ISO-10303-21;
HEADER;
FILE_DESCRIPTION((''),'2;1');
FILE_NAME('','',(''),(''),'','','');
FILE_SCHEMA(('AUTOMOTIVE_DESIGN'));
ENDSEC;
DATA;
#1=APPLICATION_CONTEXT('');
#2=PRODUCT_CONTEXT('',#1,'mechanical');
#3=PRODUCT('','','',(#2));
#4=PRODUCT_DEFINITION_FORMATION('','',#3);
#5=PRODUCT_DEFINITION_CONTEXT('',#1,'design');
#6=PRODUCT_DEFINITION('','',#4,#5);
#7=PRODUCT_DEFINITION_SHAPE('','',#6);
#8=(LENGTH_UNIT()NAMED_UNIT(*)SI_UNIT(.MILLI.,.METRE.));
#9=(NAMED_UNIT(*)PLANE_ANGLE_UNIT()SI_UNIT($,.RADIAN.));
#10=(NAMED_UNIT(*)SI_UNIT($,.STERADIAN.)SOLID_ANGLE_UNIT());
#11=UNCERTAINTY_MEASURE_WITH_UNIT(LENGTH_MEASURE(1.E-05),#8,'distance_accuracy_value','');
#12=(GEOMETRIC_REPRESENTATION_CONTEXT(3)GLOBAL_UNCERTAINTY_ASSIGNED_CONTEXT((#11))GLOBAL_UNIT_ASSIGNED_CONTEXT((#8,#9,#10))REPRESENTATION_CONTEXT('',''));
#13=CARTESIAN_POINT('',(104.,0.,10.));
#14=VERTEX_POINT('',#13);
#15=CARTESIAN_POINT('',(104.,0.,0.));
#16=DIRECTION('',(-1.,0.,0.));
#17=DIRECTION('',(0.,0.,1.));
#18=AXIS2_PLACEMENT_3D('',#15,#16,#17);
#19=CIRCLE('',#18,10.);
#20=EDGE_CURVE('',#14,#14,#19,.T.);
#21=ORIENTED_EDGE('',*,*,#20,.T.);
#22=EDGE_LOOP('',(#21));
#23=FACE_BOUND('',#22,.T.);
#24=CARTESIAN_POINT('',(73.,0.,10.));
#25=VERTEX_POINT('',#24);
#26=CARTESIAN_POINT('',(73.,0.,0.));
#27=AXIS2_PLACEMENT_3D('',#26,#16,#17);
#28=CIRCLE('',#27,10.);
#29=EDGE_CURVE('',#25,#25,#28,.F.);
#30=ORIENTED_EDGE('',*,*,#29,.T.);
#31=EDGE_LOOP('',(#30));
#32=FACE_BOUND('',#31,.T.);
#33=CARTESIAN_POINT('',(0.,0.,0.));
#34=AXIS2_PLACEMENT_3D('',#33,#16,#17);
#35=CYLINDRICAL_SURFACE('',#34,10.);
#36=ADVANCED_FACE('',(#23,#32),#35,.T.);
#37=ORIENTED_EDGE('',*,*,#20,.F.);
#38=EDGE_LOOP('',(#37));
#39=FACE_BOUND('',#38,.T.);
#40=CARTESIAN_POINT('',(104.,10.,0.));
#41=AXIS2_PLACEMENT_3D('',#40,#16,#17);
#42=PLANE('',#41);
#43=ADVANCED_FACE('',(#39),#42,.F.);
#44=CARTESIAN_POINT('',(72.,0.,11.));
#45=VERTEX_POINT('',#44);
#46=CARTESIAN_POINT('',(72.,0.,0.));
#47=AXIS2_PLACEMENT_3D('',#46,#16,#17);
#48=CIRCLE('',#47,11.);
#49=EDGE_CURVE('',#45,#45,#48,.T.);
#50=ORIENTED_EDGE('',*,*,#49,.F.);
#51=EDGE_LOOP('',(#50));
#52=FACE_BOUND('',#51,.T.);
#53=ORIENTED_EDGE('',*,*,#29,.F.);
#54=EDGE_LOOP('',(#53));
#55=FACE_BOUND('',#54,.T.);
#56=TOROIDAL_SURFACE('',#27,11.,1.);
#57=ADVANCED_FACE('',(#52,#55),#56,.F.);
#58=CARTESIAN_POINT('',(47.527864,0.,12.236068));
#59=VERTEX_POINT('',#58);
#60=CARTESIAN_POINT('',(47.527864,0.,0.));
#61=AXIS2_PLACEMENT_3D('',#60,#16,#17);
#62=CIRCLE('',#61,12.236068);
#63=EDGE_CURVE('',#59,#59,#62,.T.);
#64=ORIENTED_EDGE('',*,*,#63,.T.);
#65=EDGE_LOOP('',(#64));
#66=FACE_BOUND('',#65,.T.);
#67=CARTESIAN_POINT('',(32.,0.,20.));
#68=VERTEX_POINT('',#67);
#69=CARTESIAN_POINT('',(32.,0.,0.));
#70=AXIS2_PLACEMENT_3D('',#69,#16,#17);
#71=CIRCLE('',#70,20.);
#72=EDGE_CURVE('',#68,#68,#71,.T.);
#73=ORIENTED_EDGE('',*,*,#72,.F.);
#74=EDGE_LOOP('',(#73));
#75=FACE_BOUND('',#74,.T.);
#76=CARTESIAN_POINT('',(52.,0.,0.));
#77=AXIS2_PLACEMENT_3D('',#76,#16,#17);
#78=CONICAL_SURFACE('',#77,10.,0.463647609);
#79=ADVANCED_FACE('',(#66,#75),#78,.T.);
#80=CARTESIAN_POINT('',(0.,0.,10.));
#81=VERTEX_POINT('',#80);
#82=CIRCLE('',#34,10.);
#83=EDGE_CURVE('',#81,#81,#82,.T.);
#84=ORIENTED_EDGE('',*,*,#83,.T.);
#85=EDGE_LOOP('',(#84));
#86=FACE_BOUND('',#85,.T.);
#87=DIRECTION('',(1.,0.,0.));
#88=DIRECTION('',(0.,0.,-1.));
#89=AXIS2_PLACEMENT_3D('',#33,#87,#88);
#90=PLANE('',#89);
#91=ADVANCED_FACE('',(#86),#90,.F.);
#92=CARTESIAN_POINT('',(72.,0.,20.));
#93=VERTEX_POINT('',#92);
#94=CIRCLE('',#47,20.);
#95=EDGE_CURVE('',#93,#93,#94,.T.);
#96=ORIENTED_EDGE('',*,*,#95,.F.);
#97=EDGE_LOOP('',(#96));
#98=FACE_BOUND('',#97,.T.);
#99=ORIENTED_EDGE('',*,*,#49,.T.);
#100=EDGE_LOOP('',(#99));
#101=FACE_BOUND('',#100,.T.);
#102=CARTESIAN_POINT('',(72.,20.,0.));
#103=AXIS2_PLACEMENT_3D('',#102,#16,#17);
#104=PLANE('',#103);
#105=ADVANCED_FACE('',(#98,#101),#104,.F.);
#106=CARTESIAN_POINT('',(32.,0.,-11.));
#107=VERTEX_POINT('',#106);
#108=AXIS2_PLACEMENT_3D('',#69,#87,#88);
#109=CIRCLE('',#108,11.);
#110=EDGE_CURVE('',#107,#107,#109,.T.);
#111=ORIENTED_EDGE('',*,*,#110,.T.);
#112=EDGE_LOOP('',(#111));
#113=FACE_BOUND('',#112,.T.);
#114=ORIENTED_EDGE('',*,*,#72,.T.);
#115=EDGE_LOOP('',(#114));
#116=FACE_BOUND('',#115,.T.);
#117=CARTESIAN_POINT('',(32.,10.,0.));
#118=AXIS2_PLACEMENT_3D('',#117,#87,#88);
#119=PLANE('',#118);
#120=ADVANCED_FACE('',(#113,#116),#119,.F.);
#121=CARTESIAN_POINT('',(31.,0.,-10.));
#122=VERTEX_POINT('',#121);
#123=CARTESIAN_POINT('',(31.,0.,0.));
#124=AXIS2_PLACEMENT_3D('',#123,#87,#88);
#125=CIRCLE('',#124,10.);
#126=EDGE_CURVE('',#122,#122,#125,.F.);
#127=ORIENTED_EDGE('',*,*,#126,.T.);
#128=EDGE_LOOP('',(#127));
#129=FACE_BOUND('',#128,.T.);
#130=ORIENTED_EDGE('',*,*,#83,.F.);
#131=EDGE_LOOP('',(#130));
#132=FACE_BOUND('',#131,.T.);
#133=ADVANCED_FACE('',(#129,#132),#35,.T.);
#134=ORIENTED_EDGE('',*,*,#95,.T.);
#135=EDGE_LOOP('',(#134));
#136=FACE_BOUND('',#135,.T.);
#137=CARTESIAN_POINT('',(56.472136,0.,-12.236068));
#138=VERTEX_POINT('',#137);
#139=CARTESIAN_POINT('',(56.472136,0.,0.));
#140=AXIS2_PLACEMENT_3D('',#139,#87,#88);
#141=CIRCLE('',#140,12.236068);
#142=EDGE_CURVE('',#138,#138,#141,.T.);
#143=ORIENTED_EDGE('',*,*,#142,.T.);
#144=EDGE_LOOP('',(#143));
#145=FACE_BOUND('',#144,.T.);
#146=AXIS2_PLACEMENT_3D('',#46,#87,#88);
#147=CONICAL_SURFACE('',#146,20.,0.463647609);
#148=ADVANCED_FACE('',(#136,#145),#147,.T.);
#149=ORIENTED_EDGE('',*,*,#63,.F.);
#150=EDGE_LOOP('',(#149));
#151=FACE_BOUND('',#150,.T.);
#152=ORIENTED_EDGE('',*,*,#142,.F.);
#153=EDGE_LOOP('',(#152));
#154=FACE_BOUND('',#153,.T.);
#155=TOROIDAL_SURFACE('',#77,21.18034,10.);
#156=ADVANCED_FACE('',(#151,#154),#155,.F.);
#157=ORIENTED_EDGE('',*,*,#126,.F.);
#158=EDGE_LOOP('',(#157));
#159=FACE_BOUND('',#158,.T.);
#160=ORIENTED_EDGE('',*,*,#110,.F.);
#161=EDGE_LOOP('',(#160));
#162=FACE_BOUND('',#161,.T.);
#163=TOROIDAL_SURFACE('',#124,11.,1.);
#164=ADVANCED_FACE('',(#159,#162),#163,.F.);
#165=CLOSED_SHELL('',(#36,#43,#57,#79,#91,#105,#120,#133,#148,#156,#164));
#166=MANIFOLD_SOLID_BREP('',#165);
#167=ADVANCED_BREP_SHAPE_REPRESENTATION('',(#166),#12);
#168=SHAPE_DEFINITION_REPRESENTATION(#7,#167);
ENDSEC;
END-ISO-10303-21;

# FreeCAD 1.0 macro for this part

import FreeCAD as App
import Part
import Sketcher

V = App.Vector
Q = App.Units.Quantity


def edges_at(feature, points):
    """Names of the edges that pass closest to the given points."""
    edges = feature.Shape.Edges
    near = lambda p: min(range(len(edges)), key=lambda i: edges[i].distToShape(Part.Vertex(*p))[0])
    return sorted({f"Edge{near(p) + 1}" for p in points})


def add_polygon(sketch, points):
    """Adds a closed chain of lines whose ends are joined by coincident constraints."""
    first, n = sketch.GeometryCount, len(points)
    for a, b in zip(points, points[1:] + points[:1]):
        sketch.addGeometry(Part.LineSegment(App.Vector(*a, 0), App.Vector(*b, 0)), False)
    for i in range(n):
        sketch.addConstraint(Sketcher.Constraint("Coincident", first + i, 2, first + (i + 1) % n, 1))

doc = App.newDocument("Part")
body = doc.addObject("PartDesign::Body", "Body")

sketch1 = body.newObject("Sketcher::SketchObject", "Sketch")
sketch1.AttachmentSupport = (doc.getObject("XY_Plane"), [""])
sketch1.MapMode = "FlatFace"
add_polygon(sketch1, [(0, 10), (0, 0), (104, 0), (104, 10), (72, 10), (72, 20), (52, 10), (32, 20), (32, 10)])
sketch1.addConstraint([
    Sketcher.Constraint("Vertical", 0),
    Sketcher.Constraint("Horizontal", 1),
    Sketcher.Constraint("Vertical", 2),
    Sketcher.Constraint("Horizontal", 3),
    Sketcher.Constraint("Vertical", 4),
    Sketcher.Constraint("Vertical", 7),
    Sketcher.Constraint("Horizontal", 8),
    Sketcher.Constraint("Coincident", 0, 2, -1, 1),
    Sketcher.Constraint("Horizontal", 3, 2, 5, 2),
    Sketcher.Constraint("Horizontal", 4, 2, 6, 2),
    Sketcher.Constraint("Horizontal", 5, 2, 7, 2),
    Sketcher.Constraint("Equal", 3, 8),
    Sketcher.Constraint("Equal", 2, 4),
    Sketcher.Constraint("Equal", 5, 6),
    Sketcher.Constraint("DistanceX", 1, 1, 1, 2, Q("104 mm")),
    Sketcher.Constraint("DistanceX", 3, 2, 3, 1, Q("32 mm")),
    Sketcher.Constraint("DistanceY", 0, 2, 0, 1, Q("10 mm")),
])
revolution = body.newObject("PartDesign::Revolution", "Revolution")
revolution.Profile = sketch1
revolution.ReferenceAxis = (sketch1, ["H_Axis"])
revolution.Angle = 360
doc.recompute()

fillet = body.newObject("PartDesign::Fillet", "Fillet")
fillet.Base = (revolution, edges_at(revolution, [(32, 0, -10), (72, 0, -10)]))
fillet.Radius = 1
doc.recompute()

fillet2 = body.newObject("PartDesign::Fillet", "Fillet001")
fillet2.Base = (fillet, edges_at(fillet, [(52, 0, -10)]))
fillet2.Radius = 10

doc.recompute()
